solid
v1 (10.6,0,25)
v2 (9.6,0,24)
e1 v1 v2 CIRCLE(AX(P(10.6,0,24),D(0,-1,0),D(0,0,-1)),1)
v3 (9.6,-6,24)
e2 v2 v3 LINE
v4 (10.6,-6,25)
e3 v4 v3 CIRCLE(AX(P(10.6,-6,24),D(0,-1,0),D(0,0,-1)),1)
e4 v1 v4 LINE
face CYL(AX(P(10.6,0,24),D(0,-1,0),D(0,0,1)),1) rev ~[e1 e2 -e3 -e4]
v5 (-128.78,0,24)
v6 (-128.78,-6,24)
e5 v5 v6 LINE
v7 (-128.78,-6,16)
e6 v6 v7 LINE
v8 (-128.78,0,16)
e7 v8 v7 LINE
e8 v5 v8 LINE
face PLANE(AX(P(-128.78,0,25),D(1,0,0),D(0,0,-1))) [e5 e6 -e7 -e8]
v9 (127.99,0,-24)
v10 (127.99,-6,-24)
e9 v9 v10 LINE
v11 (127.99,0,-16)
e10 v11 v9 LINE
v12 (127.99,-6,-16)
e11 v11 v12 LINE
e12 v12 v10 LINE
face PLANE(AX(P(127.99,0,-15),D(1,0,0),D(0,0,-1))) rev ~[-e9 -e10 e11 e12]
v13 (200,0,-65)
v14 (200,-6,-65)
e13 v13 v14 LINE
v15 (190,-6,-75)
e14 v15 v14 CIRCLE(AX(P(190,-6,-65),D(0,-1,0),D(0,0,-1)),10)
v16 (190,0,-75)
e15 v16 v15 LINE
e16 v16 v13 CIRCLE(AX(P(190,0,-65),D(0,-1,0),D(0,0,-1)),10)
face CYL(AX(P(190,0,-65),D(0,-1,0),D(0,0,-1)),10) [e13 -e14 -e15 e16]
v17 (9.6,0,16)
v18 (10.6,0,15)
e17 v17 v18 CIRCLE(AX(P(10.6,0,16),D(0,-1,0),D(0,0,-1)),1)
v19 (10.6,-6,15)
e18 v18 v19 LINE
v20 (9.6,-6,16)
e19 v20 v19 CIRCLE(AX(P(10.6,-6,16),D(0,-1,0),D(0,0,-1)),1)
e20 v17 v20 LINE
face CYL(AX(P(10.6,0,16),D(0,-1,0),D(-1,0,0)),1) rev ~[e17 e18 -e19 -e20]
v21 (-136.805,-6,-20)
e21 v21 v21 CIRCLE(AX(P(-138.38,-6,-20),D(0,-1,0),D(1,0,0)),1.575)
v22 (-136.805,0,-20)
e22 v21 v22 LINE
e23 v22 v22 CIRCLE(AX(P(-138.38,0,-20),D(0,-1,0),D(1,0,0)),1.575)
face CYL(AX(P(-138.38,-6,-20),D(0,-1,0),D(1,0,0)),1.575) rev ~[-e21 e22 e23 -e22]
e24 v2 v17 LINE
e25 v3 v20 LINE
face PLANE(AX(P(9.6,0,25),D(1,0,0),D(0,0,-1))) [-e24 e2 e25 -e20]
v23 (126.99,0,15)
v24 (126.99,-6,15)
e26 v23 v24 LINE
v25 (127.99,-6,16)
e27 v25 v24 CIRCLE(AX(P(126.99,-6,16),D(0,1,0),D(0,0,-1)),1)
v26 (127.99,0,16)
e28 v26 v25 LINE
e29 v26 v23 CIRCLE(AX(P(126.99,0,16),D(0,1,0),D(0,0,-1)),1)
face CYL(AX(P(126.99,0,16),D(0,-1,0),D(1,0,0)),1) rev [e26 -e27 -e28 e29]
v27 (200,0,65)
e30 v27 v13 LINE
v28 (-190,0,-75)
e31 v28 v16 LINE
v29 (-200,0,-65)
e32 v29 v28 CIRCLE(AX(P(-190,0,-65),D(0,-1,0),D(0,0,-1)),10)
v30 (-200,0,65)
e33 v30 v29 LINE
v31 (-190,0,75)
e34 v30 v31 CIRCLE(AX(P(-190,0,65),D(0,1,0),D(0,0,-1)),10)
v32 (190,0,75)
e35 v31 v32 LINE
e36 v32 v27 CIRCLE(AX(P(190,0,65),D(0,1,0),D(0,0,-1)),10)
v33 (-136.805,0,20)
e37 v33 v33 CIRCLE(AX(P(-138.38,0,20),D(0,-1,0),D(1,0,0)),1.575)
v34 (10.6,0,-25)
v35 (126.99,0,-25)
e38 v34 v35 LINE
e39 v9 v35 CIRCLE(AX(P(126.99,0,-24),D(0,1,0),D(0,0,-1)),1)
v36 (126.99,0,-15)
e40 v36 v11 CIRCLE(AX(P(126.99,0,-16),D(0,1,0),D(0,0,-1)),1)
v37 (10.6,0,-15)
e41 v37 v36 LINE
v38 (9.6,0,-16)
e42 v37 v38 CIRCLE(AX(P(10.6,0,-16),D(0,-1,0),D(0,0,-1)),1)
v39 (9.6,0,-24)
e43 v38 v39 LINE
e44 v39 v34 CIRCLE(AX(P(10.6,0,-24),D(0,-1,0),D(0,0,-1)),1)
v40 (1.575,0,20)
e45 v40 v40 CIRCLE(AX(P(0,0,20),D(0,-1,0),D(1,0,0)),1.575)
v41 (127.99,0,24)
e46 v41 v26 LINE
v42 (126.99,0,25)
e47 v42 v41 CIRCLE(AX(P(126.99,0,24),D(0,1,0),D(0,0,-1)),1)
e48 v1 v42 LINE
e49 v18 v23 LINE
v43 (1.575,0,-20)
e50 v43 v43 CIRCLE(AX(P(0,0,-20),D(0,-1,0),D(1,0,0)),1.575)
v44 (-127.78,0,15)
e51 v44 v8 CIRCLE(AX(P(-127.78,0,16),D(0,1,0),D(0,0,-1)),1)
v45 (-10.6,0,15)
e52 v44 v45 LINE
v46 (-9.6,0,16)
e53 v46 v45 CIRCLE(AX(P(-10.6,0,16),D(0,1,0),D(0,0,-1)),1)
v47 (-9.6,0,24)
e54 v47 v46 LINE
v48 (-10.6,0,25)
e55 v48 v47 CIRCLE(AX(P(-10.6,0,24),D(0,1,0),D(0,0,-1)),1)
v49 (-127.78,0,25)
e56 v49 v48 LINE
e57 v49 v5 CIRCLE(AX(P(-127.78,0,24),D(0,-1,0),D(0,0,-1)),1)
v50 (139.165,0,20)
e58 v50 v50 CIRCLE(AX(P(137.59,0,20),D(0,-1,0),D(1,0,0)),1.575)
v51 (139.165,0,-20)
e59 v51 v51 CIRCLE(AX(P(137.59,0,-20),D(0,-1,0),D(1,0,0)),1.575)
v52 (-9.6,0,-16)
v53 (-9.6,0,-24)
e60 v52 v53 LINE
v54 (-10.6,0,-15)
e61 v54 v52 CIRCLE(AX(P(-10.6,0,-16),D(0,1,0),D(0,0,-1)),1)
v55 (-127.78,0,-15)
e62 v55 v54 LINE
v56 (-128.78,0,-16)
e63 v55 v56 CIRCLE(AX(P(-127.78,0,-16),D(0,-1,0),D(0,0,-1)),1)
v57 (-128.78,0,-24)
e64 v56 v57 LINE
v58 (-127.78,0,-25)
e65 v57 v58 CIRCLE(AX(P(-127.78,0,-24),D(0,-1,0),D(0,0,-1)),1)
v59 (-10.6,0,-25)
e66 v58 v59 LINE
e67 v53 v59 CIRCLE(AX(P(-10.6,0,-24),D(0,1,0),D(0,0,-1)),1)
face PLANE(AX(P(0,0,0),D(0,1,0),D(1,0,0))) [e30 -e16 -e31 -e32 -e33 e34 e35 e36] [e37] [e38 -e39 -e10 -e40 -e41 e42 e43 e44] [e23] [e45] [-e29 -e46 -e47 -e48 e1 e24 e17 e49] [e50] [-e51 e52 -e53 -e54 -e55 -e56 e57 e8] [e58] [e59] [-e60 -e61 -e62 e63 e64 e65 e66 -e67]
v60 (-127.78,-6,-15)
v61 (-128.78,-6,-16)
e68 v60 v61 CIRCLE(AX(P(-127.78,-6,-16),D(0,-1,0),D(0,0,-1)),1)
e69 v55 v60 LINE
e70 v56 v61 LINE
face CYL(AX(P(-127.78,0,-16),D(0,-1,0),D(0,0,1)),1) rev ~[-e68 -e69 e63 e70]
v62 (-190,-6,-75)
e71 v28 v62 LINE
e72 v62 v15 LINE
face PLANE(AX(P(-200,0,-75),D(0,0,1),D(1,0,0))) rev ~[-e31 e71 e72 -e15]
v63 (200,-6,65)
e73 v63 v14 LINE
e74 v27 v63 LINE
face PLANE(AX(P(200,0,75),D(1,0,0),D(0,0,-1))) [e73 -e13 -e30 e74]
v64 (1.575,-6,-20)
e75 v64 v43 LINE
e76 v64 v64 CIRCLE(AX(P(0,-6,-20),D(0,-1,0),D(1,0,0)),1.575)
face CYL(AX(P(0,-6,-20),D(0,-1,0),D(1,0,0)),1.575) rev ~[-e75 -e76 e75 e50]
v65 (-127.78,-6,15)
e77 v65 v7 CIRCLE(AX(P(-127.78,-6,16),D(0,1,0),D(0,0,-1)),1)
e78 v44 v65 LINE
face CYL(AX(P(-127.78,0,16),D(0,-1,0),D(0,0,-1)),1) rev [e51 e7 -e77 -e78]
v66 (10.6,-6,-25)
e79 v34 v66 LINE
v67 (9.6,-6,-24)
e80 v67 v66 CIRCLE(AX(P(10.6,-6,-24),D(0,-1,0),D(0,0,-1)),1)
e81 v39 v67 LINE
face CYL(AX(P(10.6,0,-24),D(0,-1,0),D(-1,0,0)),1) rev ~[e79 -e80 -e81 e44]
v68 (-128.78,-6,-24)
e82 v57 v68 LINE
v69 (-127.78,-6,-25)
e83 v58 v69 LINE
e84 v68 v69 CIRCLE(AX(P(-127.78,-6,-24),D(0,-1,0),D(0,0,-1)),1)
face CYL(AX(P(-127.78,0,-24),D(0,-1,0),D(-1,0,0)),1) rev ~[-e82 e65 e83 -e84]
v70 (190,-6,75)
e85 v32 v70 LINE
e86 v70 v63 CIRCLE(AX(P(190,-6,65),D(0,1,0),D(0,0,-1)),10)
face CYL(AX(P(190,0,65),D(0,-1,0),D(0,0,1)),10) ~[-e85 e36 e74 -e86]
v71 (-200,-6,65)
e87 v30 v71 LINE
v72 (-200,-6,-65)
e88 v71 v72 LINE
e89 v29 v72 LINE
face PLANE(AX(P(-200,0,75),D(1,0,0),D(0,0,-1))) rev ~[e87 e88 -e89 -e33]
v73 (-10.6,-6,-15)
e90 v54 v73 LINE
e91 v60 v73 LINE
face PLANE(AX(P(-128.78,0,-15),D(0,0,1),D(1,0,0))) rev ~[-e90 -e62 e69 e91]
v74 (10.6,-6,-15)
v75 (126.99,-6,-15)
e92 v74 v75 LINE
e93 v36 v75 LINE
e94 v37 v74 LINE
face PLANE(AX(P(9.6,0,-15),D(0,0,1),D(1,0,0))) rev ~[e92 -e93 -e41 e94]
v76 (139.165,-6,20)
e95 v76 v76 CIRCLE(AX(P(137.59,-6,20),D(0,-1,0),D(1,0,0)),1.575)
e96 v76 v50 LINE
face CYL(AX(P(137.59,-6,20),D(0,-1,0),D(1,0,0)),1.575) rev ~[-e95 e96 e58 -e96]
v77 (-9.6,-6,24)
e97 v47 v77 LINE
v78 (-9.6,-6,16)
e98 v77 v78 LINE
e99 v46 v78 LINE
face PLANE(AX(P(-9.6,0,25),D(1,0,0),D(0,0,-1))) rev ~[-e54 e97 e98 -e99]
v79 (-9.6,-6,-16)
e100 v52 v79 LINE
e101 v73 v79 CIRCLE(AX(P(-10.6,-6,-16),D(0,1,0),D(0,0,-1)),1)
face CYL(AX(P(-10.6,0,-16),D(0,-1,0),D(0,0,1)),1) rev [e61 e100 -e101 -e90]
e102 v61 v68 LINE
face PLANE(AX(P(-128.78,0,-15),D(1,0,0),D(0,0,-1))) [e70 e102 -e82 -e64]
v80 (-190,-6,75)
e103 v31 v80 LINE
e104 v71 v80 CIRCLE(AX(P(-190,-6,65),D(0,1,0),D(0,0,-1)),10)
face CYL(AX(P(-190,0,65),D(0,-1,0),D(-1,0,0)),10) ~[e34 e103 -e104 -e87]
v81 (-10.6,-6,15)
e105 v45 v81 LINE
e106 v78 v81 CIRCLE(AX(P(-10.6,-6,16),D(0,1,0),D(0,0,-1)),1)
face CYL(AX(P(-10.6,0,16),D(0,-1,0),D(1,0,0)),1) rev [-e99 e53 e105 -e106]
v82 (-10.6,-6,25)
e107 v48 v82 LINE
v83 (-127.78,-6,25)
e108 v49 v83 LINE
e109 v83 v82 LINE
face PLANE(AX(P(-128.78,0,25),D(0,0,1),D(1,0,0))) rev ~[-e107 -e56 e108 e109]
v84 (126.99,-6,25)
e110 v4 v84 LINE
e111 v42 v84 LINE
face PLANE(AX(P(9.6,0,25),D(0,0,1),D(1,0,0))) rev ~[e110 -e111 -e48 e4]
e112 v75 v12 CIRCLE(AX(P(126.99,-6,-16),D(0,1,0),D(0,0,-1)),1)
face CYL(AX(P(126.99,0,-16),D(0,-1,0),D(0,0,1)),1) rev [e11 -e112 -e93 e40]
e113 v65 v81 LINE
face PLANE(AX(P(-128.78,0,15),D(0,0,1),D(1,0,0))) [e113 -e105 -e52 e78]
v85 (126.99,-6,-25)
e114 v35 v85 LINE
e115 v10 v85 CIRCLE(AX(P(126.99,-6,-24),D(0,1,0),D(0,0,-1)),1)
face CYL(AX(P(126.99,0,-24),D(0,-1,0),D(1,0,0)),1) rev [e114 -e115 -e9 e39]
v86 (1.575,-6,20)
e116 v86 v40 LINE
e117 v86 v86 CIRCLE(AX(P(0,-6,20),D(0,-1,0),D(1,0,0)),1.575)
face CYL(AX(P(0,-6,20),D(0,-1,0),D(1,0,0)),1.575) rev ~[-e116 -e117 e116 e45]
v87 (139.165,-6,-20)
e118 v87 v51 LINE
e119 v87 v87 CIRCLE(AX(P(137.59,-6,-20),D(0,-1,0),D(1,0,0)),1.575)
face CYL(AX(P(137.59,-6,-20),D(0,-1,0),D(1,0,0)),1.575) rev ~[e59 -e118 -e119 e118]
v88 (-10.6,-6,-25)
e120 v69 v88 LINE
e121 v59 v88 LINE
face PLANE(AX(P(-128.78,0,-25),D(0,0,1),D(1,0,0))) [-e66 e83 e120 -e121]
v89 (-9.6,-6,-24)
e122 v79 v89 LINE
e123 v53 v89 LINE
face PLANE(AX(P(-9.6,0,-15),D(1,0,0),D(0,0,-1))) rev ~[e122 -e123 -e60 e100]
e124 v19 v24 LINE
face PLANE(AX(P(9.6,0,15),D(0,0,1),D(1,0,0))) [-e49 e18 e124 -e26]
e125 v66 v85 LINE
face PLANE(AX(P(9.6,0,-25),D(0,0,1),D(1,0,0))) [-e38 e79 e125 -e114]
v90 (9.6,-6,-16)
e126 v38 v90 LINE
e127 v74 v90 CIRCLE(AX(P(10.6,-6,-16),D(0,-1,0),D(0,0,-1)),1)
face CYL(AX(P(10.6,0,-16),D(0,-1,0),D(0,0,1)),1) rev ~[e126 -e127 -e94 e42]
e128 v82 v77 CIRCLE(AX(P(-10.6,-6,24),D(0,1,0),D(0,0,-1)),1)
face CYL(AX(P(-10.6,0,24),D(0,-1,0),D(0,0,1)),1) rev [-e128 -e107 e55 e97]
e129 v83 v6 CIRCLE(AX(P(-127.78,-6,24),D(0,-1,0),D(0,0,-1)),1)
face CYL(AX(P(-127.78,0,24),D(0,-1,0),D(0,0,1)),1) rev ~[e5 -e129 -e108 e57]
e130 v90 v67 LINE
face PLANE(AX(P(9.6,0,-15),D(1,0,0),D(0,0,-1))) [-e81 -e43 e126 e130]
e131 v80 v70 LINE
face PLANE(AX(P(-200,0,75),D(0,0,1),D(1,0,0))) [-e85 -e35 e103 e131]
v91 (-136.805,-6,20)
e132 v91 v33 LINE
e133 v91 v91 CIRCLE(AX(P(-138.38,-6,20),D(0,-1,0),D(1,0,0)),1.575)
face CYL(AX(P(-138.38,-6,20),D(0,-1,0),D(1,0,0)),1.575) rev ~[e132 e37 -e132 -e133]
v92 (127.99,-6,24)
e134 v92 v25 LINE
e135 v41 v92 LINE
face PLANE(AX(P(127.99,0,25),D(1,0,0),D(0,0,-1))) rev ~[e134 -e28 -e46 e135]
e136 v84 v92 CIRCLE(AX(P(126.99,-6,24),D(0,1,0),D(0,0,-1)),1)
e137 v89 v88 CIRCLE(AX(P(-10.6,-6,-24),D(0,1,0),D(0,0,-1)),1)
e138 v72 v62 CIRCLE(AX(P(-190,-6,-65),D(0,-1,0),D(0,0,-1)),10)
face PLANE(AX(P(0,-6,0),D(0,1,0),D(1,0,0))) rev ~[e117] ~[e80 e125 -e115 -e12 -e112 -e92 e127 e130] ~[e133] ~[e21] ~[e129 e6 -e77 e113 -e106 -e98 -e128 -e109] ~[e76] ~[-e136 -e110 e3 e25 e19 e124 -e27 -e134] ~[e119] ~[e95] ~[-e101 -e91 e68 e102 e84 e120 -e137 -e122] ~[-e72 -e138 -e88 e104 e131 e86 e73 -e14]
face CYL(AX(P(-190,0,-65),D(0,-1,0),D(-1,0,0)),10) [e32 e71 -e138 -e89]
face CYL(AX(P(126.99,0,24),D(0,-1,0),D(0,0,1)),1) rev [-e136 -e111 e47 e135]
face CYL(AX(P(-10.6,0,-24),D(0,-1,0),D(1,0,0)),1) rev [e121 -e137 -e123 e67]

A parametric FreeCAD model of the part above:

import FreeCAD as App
import Part
import Sketcher
from FreeCAD import Vector
Q = App.Units.Quantity


def edges_at(feature, points):
    """Names of the edges that pass closest to the given points."""
    edges = feature.Shape.Edges
    near = lambda p: min(range(len(edges)), key=lambda i: edges[i].distToShape(Part.Vertex(*p))[0])
    return sorted({f"Edge{near(p) + 1}" for p in points})


def add_polygon(sketch, points):
    """Adds a closed chain of lines whose ends are joined by coincident constraints."""
    first, n = sketch.GeometryCount, len(points)
    for a, b in zip(points, points[1:] + points[:1]):
        sketch.addGeometry(Part.LineSegment(App.Vector(*a, 0), App.Vector(*b, 0)), False)
    for i in range(n):
        sketch.addConstraint(Sketcher.Constraint("Coincident", first + i, 2, first + (i + 1) % n, 1))

doc = App.newDocument("Part")
body = doc.addObject("PartDesign::Body", "Body")

# Sketch on XZ plane
sketch1 = body.newObject("Sketcher::SketchObject", "Sketch")
sketch1.AttachmentSupport = (doc.getObject("XZ_Plane"), [""])
sketch1.MapMode = "FlatFace"
add_polygon(sketch1, [(-200, -75), (-200, 75), (200, 75), (200, -75)])  # lines 0-3
add_polygon(sketch1, [(-9.6, 25), (-128.78, 25), (-128.78, 15), (-9.6, 15)])  # lines 4-7
add_polygon(sketch1, [(127.99, 25), (9.6, 25), (9.6, 15), (127.99, 15)])  # lines 8-11
add_polygon(sketch1, [(-9.6, -15), (-128.78, -15), (-128.78, -25), (-9.6, -25)])  # lines 12-15
add_polygon(sketch1, [(127.99, -15), (9.6, -15), (9.6, -25), (127.99, -25)])  # lines 16-19
sketch1.addConstraint(Sketcher.Constraint("Vertical", 0))
sketch1.addConstraint(Sketcher.Constraint("Horizontal", 1))
sketch1.addConstraint(Sketcher.Constraint("Vertical", 2))
sketch1.addConstraint(Sketcher.Constraint("Horizontal", 3))
sketch1.addConstraint(Sketcher.Constraint("Horizontal", 4))
sketch1.addConstraint(Sketcher.Constraint("Vertical", 5))
sketch1.addConstraint(Sketcher.Constraint("Horizontal", 6))
sketch1.addConstraint(Sketcher.Constraint("Vertical", 7))
sketch1.addConstraint(Sketcher.Constraint("Horizontal", 8))
sketch1.addConstraint(Sketcher.Constraint("Vertical", 9))
sketch1.addConstraint(Sketcher.Constraint("Horizontal", 10))
sketch1.addConstraint(Sketcher.Constraint("Vertical", 11))
sketch1.addConstraint(Sketcher.Constraint("Horizontal", 12))
sketch1.addConstraint(Sketcher.Constraint("Vertical", 13))
sketch1.addConstraint(Sketcher.Constraint("Horizontal", 14))
sketch1.addConstraint(Sketcher.Constraint("Vertical", 15))
sketch1.addConstraint(Sketcher.Constraint("Horizontal", 16))
sketch1.addConstraint(Sketcher.Constraint("Vertical", 17))
sketch1.addConstraint(Sketcher.Constraint("Horizontal", 18))
sketch1.addConstraint(Sketcher.Constraint("Vertical", 19))
sketch1.addConstraint(Sketcher.Constraint("Symmetric", 0, 2, 2, 2, -1, 1))
sketch1.addConstraint(Sketcher.Constraint("Symmetric", 8, 2, 14, 2, -1, 1))
sketch1.addConstraint(Sketcher.Constraint("Symmetric", 6, 2, 16, 2, -1, 1))
sketch1.addConstraint(Sketcher.Constraint("Symmetric", 7, 2, 8, 2, -2))
sketch1.addConstraint(Sketcher.Constraint("Symmetric", 5, 2, 12, 2, -1))
sketch1.addConstraint(Sketcher.Constraint("Symmetric", 11, 2, 18, 2, -1))
sketch1.addConstraint(Sketcher.Constraint("Horizontal", 6, 2, 9, 2))
sketch1.addConstraint(Sketcher.Constraint("DistanceX", 1, 1, 1, 2, Q("400 mm")))
sketch1.addConstraint(Sketcher.Constraint("DistanceY", 0, 1, 0, 2, Q("150 mm")))
sketch1.addConstraint(Sketcher.Constraint("DistanceY", 5, 2, 5, 1, Q("10 mm")))
sketch1.addConstraint(Sketcher.Constraint("DistanceY", -1, 1, 4, 2, Q("25 mm")))
sketch1.addConstraint(Sketcher.Constraint("DistanceX", 4, 2, 4, 1, Q("119.18 mm")))
sketch1.addConstraint(Sketcher.Constraint("DistanceX", 8, 2, 8, 1, Q("118.39 mm")))
sketch1.addConstraint(Sketcher.Constraint("DistanceX", 6, 2, -1, 1, Q("9.6 mm")))
pad1 = body.newObject("PartDesign::Pad", "Pad")
pad1.Profile = sketch1
pad1.Length = 6
doc.recompute()

fillet = body.newObject("PartDesign::Fillet", "Fillet")
fillet.Base = (pad1, edges_at(pad1, [
    (200, -3, 75),
    (-200, -3, 75),
    (-200, -3, -75),
    (200, -3, -75),
]))
fillet.Radius = 10
doc.recompute()

fillet2 = body.newObject("PartDesign::Fillet", "Fillet001")
fillet2.Base = (fillet, edges_at(fillet, [
    (9.6, -3, -15),
    (9.6, -3, -25),
    (127.99, -3, -25),
    (127.99, -3, -15),
    (-9.6, -3, -25),
    (-9.6, -3, -15),
    (-128.78, -3, -15),
    (-128.78, -3, -25),
    (127.99, -3, 15),
    (127.99, -3, 25),
    (9.6, -3, 25),
    (9.6, -3, 15),
    (-9.6, -3, 15),
    (-9.6, -3, 25),
    (-128.78, -3, 25),
    (-128.78, -3, 15),
]))
fillet2.Radius = 1

# Sketch on XZ plane
sketch2 = body.newObject("Sketcher::SketchObject", "Sketch001")
sketch2.AttachmentSupport = (doc.getObject("XZ_Plane"), [""])
sketch2.MapMode = "FlatFace"
sketch2.AttachmentOffset = App.Placement(Vector(0, 0, 6), App.Rotation())
sketch2.addGeometry(Part.Circle(Vector(-138.38, 20, 0), Vector(0, 0, 1), 1.575), False)
sketch2.addGeometry(Part.Circle(Vector(-138.38, -20, 0), Vector(0, 0, 1), 1.575), False)
sketch2.addGeometry(Part.Circle(Vector(0, -20, 0), Vector(0, 0, 1), 1.575), False)
sketch2.addGeometry(Part.Circle(Vector(0, 20, 0), Vector(0, 0, 1), 1.575), False)
sketch2.addGeometry(Part.Circle(Vector(137.59, 20, 0), Vector(0, 0, 1), 1.575), False)
sketch2.addGeometry(Part.Circle(Vector(137.59, -20, 0), Vector(0, 0, 1), 1.575), False)
sketch2.addConstraint(Sketcher.Constraint("Equal", 0, 1))
sketch2.addConstraint(Sketcher.Constraint("Equal", 1, 2))
sketch2.addConstraint(Sketcher.Constraint("Equal", 2, 3))
sketch2.addConstraint(Sketcher.Constraint("Equal", 3, 4))
sketch2.addConstraint(Sketcher.Constraint("Equal", 4, 5))
sketch2.addConstraint(Sketcher.Constraint("Symmetric", 2, 3, 3, 3, -1, 1))
sketch2.addConstraint(Sketcher.Constraint("Symmetric", 0, 3, 1, 3, -1))
sketch2.addConstraint(Sketcher.Constraint("Symmetric", 4, 3, 5, 3, -1))
sketch2.addConstraint(Sketcher.Constraint("PointOnObject", 2, 3, -2))
sketch2.addConstraint(Sketcher.Constraint("Horizontal", 1, 3, 2, 3))
sketch2.addConstraint(Sketcher.Constraint("Horizontal", 3, 3, 4, 3))
sketch2.addConstraint(Sketcher.Constraint("Diameter", 0, Q("3.15 mm")))
sketch2.addConstraint(Sketcher.Constraint("DistanceY", -1, 1, 0, 3, Q("20 mm")))
sketch2.addConstraint(Sketcher.Constraint("DistanceX", 0, 3, -1, 1, Q("138.38 mm")))
sketch2.addConstraint(Sketcher.Constraint("DistanceX", -1, 1, 4, 3, Q("137.59 mm")))
pocket1 = body.newObject("PartDesign::Pocket", "Pocket")
pocket1.Profile = sketch2
pocket1.Type = "ThroughAll"

doc.recompute()
